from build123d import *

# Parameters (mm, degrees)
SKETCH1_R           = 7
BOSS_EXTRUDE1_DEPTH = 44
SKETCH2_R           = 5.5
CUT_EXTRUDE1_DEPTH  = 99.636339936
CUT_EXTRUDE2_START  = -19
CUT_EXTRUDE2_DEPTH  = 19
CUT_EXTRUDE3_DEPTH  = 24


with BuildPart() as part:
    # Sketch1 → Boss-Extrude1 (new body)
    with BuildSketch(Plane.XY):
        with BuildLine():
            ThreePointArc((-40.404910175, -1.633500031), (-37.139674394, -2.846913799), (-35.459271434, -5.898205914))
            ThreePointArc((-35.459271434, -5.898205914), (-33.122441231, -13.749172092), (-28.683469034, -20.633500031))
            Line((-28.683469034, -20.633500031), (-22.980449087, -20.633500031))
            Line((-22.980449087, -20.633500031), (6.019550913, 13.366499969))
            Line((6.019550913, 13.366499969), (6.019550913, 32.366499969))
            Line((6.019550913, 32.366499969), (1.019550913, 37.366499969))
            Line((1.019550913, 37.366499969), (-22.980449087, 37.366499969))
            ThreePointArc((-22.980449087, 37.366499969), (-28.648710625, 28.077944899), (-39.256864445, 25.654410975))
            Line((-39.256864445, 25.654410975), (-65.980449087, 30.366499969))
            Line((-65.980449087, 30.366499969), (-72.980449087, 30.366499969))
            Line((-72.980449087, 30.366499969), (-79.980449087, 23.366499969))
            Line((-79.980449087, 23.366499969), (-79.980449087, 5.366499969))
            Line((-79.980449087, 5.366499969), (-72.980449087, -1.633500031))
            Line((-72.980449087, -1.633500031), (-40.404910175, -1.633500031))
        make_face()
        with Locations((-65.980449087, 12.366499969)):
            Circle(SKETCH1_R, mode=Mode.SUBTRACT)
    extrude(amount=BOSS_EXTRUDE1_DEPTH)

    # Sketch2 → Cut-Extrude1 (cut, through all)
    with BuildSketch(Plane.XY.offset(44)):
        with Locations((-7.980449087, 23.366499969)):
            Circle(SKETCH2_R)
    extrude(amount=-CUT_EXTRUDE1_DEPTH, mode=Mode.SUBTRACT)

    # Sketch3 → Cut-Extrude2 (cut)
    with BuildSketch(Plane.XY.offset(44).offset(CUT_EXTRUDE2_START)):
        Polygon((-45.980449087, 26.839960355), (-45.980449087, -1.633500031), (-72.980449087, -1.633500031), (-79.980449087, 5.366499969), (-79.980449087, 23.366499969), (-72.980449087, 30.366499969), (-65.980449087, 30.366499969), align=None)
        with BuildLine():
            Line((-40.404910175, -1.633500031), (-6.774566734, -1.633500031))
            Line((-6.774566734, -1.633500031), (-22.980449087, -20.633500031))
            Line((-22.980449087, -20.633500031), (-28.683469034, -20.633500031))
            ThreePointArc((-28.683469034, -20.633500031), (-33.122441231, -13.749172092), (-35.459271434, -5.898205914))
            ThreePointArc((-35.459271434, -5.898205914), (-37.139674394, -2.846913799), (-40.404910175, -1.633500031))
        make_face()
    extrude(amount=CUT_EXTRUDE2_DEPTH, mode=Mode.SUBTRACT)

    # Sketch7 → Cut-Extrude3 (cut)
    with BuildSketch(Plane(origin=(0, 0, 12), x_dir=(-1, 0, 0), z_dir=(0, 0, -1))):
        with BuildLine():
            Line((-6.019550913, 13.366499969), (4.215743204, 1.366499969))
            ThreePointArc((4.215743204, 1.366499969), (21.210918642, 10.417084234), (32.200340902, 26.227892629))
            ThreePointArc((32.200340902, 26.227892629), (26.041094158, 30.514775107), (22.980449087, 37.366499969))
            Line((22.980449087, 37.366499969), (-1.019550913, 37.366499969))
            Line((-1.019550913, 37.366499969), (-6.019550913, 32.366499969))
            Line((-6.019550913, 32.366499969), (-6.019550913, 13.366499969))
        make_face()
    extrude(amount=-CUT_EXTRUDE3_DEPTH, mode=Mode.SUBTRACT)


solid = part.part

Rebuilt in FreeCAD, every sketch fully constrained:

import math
import FreeCAD as App
import Part
import Sketcher
Q = App.Units.Quantity


def add_polygon(sketch, points):
    """Adds a closed chain of lines whose ends are joined by coincident constraints."""
    first, n = sketch.GeometryCount, len(points)
    for a, b in zip(points, points[1:] + points[:1]):
        sketch.addGeometry(Part.LineSegment(App.Vector(*a, 0), App.Vector(*b, 0)), False)
    for i in range(n):
        sketch.addConstraint(Sketcher.Constraint("Coincident", first + i, 2, first + (i + 1) % n, 1))

doc = App.newDocument("Part")
params = doc.addObject("Spreadsheet::Sheet", "Params")
for row, (alias, value) in enumerate([
    ("sketch1_diameter", "14 mm"),
    ("sketch1_radius", "5 mm"),
    ("sketch1_radius2", "29 mm"),
    ("sketch1_radius3", "14 mm"),
    ("sketch1_width", "24 mm"),
    ("pad1_length", "44 mm"),
    ("sketch2_diameter", "11 mm"),
    ("sketch3_radius", "5 mm"),
    ("sketch3_radius2", "29 mm"),
    ("sketch3_width", "7 mm"),
    ("sketch3_width2", "27 mm"),
    ("sketch3_height", "18 mm"),
    ("pocket2_length", "19 mm"),
    ("sketch4_radius", "41 mm"),
    ("sketch4_radius2", "14 mm"),
    ("sketch4_width", "24 mm"),
    ("sketch4_height", "19 mm"),
    ("pocket3_length", "24 mm"),
], start=1):
    params.set(f"A{row}", alias)
    params.set(f"B{row}", "=" + value)
    params.setAlias(f"B{row}", alias)

body = doc.addObject("PartDesign::Body", "Body")

# Sketch on XY plane
sketch1 = body.newObject("Sketcher::SketchObject", "Sketch")
sketch1.AttachmentSupport = (doc.getObject("XY_Plane"), [""])
sketch1.MapMode = "FlatFace"
sketch1.addGeometry([
    Part.ArcOfCircle(Part.Circle(App.Vector(-40, -7, 0), App.Vector(0, 0, 1), 5), math.radians(8), math.radians(90)),  # 0
    Part.ArcOfCircle(Part.Circle(App.Vector(-7, -2, 0), App.Vector(0, 0, 1), 29), math.radians(-172), math.radians(-139)),  # 1
    Part.LineSegment(App.Vector(-29, -21, 0), App.Vector(-23, -21, 0)),  # 2
    Part.LineSegment(App.Vector(-23, -21, 0), App.Vector(6, 13, 0)),  # 3
    Part.LineSegment(App.Vector(6, 13, 0), App.Vector(6, 32, 0)),  # 4
    Part.LineSegment(App.Vector(6, 32, 0), App.Vector(1, 37, 0)),  # 5
    Part.LineSegment(App.Vector(1, 37, 0), App.Vector(-23, 37, 0)),  # 6
    Part.ArcOfCircle(Part.Circle(App.Vector(-37, 39, 0), App.Vector(0, 0, 1), 14), math.radians(-100), math.radians(-9)),  # 7
    Part.LineSegment(App.Vector(-39, 26, 0), App.Vector(-66, 30, 0)),  # 8
    Part.LineSegment(App.Vector(-66, 30, 0), App.Vector(-73, 30, 0)),  # 9
    Part.LineSegment(App.Vector(-73, 30, 0), App.Vector(-80, 23, 0)),  # 10
    Part.LineSegment(App.Vector(-80, 23, 0), App.Vector(-80, 5, 0)),  # 11
    Part.LineSegment(App.Vector(-80, 5, 0), App.Vector(-73, -2, 0)),  # 12
    Part.LineSegment(App.Vector(-73, -2, 0), App.Vector(-40, -2, 0)),  # 13
    Part.Circle(App.Vector(-66, 12, 0), App.Vector(0, 0, 1), 7),  # 14
], False)
sketch1.addConstraint([
    Sketcher.Constraint("Tangent", 0, 1, 1, 1),
    Sketcher.Constraint("Coincident", 1, 2, 2, 1),
    Sketcher.Constraint("Coincident", 2, 2, 3, 1),
    Sketcher.Constraint("Coincident", 3, 2, 4, 1),
    Sketcher.Constraint("Coincident", 4, 2, 5, 1),
    Sketcher.Constraint("Coincident", 5, 2, 6, 1),
    Sketcher.Constraint("Coincident", 6, 2, 7, 2),
    Sketcher.Constraint("Tangent", 7, 1, 8, 1),
    Sketcher.Constraint("Coincident", 8, 2, 9, 1),
    Sketcher.Constraint("Coincident", 9, 2, 10, 1),
    Sketcher.Constraint("Coincident", 10, 2, 11, 1),
    Sketcher.Constraint("Coincident", 11, 2, 12, 1),
    Sketcher.Constraint("Coincident", 12, 2, 13, 1),
    Sketcher.Constraint("Tangent", 13, 2, 0, 2),
    Sketcher.Constraint("Horizontal", 2),
    Sketcher.Constraint("Vertical", 4),
    Sketcher.Constraint("Horizontal", 6),
    Sketcher.Constraint("Horizontal", 9),
    Sketcher.Constraint("Vertical", 11),
    Sketcher.Constraint("Horizontal", 13),
    Sketcher.Constraint("Perpendicular", 5, 10),
    Sketcher.Constraint("Perpendicular", 10, 12),
    Sketcher.Constraint("Horizontal", 1, 3, 12, 2),
    Sketcher.Constraint("Vertical", 2, 2, 6, 2),
    Sketcher.Constraint("Vertical", 14, 3, 8, 2),
    Sketcher.Constraint("Vertical", 9, 2, 12, 2),
    Sketcher.Constraint("Equal", 10, 12),
    Sketcher.Constraint("Diameter", 14, Q("14 mm")),
    Sketcher.Constraint("Radius", 0, Q("5 mm")),
    Sketcher.Constraint("Radius", 1, Q("29 mm")),
    Sketcher.Constraint("Radius", 7, Q("14 mm")),
    Sketcher.Constraint("DistanceX", 6, 2, 6, 1, Q("24 mm")),
    Sketcher.Constraint("DistanceX", 9, 2, 9, 1, Q("7 mm")),
    Sketcher.Constraint("DistanceY", 4, 1, 4, 2, Q("19 mm")),
    Sketcher.Constraint("DistanceY", 11, 2, 11, 1, Q("18 mm")),
    Sketcher.Constraint("Angle", 8, Q("170 deg")),
    Sketcher.Constraint("DistanceY", 0, 3, 14, 3, Q("19 mm")),
    Sketcher.Constraint("DistanceY", 1, 2, 0, 3, Q("14 mm")),
    Sketcher.Constraint("DistanceX", 14, 3, 2, 2, Q("43 mm")),
    Sketcher.Constraint("DistanceY", 1, 3, 3, 2, Q("15 mm")),
    Sketcher.Constraint("DistanceX", 2, 2, 3, 2, Q("29 mm")),
    Sketcher.Constraint("DistanceY", 14, 3, 8, 2, Q("18 mm")),
    Sketcher.Constraint("DistanceX", 2, 1, 2, 2, Q("5.70302 mm")),
    Sketcher.Constraint("DistanceY", 0, 3, -1, 1, Q("6.6335 mm")),
    Sketcher.Constraint("DistanceX", 0, 3, -1, 1, Q("40.40491 mm")),
])
sketch1.setExpression("Constraints[27]", "Params.sketch1_diameter")
sketch1.setExpression("Constraints[28]", "Params.sketch1_radius")
sketch1.setExpression("Constraints[29]", "Params.sketch1_radius2")
sketch1.setExpression("Constraints[30]", "Params.sketch1_radius3")
sketch1.setExpression("Constraints[31]", "Params.sketch1_width")
pad1 = body.newObject("PartDesign::Pad", "Pad")
pad1.Profile = sketch1
pad1.setExpression("Length", "Params.pad1_length")

# Sketch on XY plane
sketch2 = body.newObject("Sketcher::SketchObject", "Sketch001")
sketch2.AttachmentSupport = (doc.getObject("XY_Plane"), [""])
sketch2.MapMode = "FlatFace"
sketch2.AttachmentOffset = App.Placement(App.Vector(0, 0, 44), App.Rotation())
sketch2.addGeometry(Part.Circle(App.Vector(-8, 23, 0), App.Vector(0, 0, 1), 6), False)
sketch2.addConstraint([
    Sketcher.Constraint("Diameter", 0, Q("11 mm")),
    Sketcher.Constraint("DistanceY", -1, 1, 0, 3, Q("23.3665 mm")),
    Sketcher.Constraint("DistanceX", 0, 3, -1, 1, Q("7.980449 mm")),
])
sketch2.setExpression("Constraints[0]", "Params.sketch2_diameter")
pocket1 = body.newObject("PartDesign::Pocket", "Pocket")
pocket1.Profile = sketch2
pocket1.Type = "ThroughAll"

# Sketch on XY plane
sketch3 = body.newObject("Sketcher::SketchObject", "Sketch002")
sketch3.AttachmentSupport = (doc.getObject("XY_Plane"), [""])
sketch3.MapMode = "FlatFace"
sketch3.AttachmentOffset = App.Placement(App.Vector(0, 0, 25), App.Rotation())
add_polygon(sketch3, [(-46, -2), (-46, 27), (-66, 30), (-73, 30), (-80, 23), (-80, 5), (-73, -2)])  # lines 0-6
sketch3.addGeometry(Part.LineSegment(App.Vector(-7, -2, 0), App.Vector(-40, -2, 0)), False)  # 7
sketch3.addGeometry(Part.ArcOfCircle(Part.Circle(App.Vector(-40, -7, 0), App.Vector(0, 0, 1), 5), math.radians(8), math.radians(90)), False)  # 8
sketch3.addGeometry(Part.ArcOfCircle(Part.Circle(App.Vector(-7, -2, 0), App.Vector(0, 0, 1), 29), math.radians(-172), math.radians(-139)), False)  # 9
sketch3.addGeometry(Part.LineSegment(App.Vector(-29, -21, 0), App.Vector(-23, -21, 0)), False)  # 10
sketch3.addGeometry(Part.LineSegment(App.Vector(-23, -21, 0), App.Vector(-7, -2, 0)), False)  # 11
sketch3.addConstraint([
    Sketcher.Constraint("Tangent", 7, 2, 8, 2),
    Sketcher.Constraint("Tangent", 8, 1, 9, 1),
    Sketcher.Constraint("Coincident", 9, 2, 10, 1),
    Sketcher.Constraint("Coincident", 10, 2, 11, 1),
    Sketcher.Constraint("Coincident", 11, 2, 7, 1),
    Sketcher.Constraint("Vertical", 0),
    Sketcher.Constraint("Horizontal", 2),
    Sketcher.Constraint("Vertical", 4),
    Sketcher.Constraint("Horizontal", 6),
    Sketcher.Constraint("Horizontal", 7),
    Sketcher.Constraint("Horizontal", 10),
    Sketcher.Constraint("Coincident", 11, 2, 9, 3),
    Sketcher.Constraint("Perpendicular", 3, 5),
    Sketcher.Constraint("Horizontal", 9, 3, 5, 2),
    Sketcher.Constraint("Vertical", 2, 2, 5, 2),
    Sketcher.Constraint("Equal", 3, 5),
    Sketcher.Constraint("Radius", 8, Q("5 mm")),
    Sketcher.Constraint("Radius", 9, Q("29 mm")),
    Sketcher.Constraint("DistanceX", 2, 2, 2, 1, Q("7 mm")),
    Sketcher.Constraint("DistanceX", 6, 1, 6, 2, Q("27 mm")),
    Sketcher.Constraint("DistanceY", 4, 2, 4, 1, Q("18 mm")),
    Sketcher.Constraint("Angle", 1, Q("170 deg")),
    Sketcher.Constraint("DistanceY", 8, 3, 1, 2, Q("37 mm")),
    Sketcher.Constraint("DistanceY", 9, 2, 8, 3, Q("14 mm")),
    Sketcher.Constraint("DistanceX", 10, 1, 10, 2, Q("5.70302 mm")),
    Sketcher.Constraint("DistanceY", 8, 3, -1, 1, Q("6.6335 mm")),
    Sketcher.Constraint("DistanceX", 8, 3, -1, 1, Q("40.40491 mm")),
    Sketcher.Constraint("DistanceX", 0, 2, -1, 1, Q("45.980449 mm")),
])
sketch3.setExpression("Constraints[23]", "Params.sketch3_radius")
sketch3.setExpression("Constraints[24]", "Params.sketch3_radius2")
sketch3.setExpression("Constraints[25]", "Params.sketch3_width")
sketch3.setExpression("Constraints[26]", "Params.sketch3_width2")
sketch3.setExpression("Constraints[27]", "Params.sketch3_height")
pocket2 = body.newObject("PartDesign::Pocket", "Pocket001")
pocket2.Profile = sketch3
pocket2.setExpression("Length", "Params.pocket2_length")
pocket2.Reversed = True

# Sketch on XY plane
sketch4 = body.newObject("Sketcher::SketchObject", "Sketch003")
sketch4.AttachmentSupport = (doc.getObject("XY_Plane"), [""])
sketch4.MapMode = "FlatFace"
sketch4.AttachmentOffset = App.Placement(App.Vector(0, 0, 12), App.Rotation())
sketch4.addGeometry([
    Part.LineSegment(App.Vector(6, 13, 0), App.Vector(-4, 1, 0)),  # 0
    Part.ArcOfCircle(Part.Circle(App.Vector(6, 41, 0), App.Vector(0, 0, 1), 41), math.radians(-159), math.radians(-104)),  # 1
    Part.ArcOfCircle(Part.Circle(App.Vector(-37, 39, 0), App.Vector(0, 0, 1), 14), math.radians(-71), math.radians(-9)),  # 2
    Part.LineSegment(App.Vector(-23, 37, 0), App.Vector(1, 37, 0)),  # 3
    Part.LineSegment(App.Vector(1, 37, 0), App.Vector(6, 32, 0)),  # 4
    Part.LineSegment(App.Vector(6, 32, 0), App.Vector(6, 13, 0)),  # 5
], False)
sketch4.addConstraint([
    Sketcher.Constraint("Coincident", 0, 2, 1, 2),
    Sketcher.Constraint("Coincident", 1, 1, 2, 1),
    Sketcher.Constraint("Coincident", 2, 2, 3, 1),
    Sketcher.Constraint("Coincident", 3, 2, 4, 1),
    Sketcher.Constraint("Coincident", 4, 2, 5, 1),
    Sketcher.Constraint("Coincident", 5, 2, 0, 1),
    Sketcher.Constraint("Horizontal", 3),
    Sketcher.Constraint("Vertical", 5),
    Sketcher.Constraint("Vertical", 1, 3, 4, 2),
    Sketcher.Constraint("Radius", 1, Q("41 mm")),
    Sketcher.Constraint("Radius", 2, Q("14 mm")),
    Sketcher.Constraint("DistanceX", 3, 1, 3, 2, Q("24 mm")),
    Sketcher.Constraint("DistanceY", 5, 2, 5, 1, Q("19 mm")),
    Sketcher.Constraint("Angle", 4, Q("-45 deg")),
    Sketcher.Constraint("DistanceX", 2, 2, 1, 3, Q("29 mm")),
    Sketcher.Constraint("DistanceY", 0, 2, 2, 2, Q("36 mm")),
    Sketcher.Constraint("DistanceY", -1, 1, 0, 2, Q("1.3665 mm")),
    Sketcher.Constraint("DistanceX", -1, 1, 1, 3, Q("6.019551 mm")),
    Sketcher.Constraint("DistanceX", 2, 3, -1, 1, Q("36.82579 mm")),
    Sketcher.Constraint("DistanceX", 1, 1, -1, 1, Q("32.200341 mm")),
])
sketch4.setExpression("Constraints[9]", "Params.sketch4_radius")
sketch4.setExpression("Constraints[10]", "Params.sketch4_radius2")
sketch4.setExpression("Constraints[11]", "Params.sketch4_width")
sketch4.setExpression("Constraints[12]", "Params.sketch4_height")
pocket3 = body.newObject("PartDesign::Pocket", "Pocket002")
pocket3.Profile = sketch4
pocket3.setExpression("Length", "Params.pocket3_length")
pocket3.Reversed = True

doc.recompute()
